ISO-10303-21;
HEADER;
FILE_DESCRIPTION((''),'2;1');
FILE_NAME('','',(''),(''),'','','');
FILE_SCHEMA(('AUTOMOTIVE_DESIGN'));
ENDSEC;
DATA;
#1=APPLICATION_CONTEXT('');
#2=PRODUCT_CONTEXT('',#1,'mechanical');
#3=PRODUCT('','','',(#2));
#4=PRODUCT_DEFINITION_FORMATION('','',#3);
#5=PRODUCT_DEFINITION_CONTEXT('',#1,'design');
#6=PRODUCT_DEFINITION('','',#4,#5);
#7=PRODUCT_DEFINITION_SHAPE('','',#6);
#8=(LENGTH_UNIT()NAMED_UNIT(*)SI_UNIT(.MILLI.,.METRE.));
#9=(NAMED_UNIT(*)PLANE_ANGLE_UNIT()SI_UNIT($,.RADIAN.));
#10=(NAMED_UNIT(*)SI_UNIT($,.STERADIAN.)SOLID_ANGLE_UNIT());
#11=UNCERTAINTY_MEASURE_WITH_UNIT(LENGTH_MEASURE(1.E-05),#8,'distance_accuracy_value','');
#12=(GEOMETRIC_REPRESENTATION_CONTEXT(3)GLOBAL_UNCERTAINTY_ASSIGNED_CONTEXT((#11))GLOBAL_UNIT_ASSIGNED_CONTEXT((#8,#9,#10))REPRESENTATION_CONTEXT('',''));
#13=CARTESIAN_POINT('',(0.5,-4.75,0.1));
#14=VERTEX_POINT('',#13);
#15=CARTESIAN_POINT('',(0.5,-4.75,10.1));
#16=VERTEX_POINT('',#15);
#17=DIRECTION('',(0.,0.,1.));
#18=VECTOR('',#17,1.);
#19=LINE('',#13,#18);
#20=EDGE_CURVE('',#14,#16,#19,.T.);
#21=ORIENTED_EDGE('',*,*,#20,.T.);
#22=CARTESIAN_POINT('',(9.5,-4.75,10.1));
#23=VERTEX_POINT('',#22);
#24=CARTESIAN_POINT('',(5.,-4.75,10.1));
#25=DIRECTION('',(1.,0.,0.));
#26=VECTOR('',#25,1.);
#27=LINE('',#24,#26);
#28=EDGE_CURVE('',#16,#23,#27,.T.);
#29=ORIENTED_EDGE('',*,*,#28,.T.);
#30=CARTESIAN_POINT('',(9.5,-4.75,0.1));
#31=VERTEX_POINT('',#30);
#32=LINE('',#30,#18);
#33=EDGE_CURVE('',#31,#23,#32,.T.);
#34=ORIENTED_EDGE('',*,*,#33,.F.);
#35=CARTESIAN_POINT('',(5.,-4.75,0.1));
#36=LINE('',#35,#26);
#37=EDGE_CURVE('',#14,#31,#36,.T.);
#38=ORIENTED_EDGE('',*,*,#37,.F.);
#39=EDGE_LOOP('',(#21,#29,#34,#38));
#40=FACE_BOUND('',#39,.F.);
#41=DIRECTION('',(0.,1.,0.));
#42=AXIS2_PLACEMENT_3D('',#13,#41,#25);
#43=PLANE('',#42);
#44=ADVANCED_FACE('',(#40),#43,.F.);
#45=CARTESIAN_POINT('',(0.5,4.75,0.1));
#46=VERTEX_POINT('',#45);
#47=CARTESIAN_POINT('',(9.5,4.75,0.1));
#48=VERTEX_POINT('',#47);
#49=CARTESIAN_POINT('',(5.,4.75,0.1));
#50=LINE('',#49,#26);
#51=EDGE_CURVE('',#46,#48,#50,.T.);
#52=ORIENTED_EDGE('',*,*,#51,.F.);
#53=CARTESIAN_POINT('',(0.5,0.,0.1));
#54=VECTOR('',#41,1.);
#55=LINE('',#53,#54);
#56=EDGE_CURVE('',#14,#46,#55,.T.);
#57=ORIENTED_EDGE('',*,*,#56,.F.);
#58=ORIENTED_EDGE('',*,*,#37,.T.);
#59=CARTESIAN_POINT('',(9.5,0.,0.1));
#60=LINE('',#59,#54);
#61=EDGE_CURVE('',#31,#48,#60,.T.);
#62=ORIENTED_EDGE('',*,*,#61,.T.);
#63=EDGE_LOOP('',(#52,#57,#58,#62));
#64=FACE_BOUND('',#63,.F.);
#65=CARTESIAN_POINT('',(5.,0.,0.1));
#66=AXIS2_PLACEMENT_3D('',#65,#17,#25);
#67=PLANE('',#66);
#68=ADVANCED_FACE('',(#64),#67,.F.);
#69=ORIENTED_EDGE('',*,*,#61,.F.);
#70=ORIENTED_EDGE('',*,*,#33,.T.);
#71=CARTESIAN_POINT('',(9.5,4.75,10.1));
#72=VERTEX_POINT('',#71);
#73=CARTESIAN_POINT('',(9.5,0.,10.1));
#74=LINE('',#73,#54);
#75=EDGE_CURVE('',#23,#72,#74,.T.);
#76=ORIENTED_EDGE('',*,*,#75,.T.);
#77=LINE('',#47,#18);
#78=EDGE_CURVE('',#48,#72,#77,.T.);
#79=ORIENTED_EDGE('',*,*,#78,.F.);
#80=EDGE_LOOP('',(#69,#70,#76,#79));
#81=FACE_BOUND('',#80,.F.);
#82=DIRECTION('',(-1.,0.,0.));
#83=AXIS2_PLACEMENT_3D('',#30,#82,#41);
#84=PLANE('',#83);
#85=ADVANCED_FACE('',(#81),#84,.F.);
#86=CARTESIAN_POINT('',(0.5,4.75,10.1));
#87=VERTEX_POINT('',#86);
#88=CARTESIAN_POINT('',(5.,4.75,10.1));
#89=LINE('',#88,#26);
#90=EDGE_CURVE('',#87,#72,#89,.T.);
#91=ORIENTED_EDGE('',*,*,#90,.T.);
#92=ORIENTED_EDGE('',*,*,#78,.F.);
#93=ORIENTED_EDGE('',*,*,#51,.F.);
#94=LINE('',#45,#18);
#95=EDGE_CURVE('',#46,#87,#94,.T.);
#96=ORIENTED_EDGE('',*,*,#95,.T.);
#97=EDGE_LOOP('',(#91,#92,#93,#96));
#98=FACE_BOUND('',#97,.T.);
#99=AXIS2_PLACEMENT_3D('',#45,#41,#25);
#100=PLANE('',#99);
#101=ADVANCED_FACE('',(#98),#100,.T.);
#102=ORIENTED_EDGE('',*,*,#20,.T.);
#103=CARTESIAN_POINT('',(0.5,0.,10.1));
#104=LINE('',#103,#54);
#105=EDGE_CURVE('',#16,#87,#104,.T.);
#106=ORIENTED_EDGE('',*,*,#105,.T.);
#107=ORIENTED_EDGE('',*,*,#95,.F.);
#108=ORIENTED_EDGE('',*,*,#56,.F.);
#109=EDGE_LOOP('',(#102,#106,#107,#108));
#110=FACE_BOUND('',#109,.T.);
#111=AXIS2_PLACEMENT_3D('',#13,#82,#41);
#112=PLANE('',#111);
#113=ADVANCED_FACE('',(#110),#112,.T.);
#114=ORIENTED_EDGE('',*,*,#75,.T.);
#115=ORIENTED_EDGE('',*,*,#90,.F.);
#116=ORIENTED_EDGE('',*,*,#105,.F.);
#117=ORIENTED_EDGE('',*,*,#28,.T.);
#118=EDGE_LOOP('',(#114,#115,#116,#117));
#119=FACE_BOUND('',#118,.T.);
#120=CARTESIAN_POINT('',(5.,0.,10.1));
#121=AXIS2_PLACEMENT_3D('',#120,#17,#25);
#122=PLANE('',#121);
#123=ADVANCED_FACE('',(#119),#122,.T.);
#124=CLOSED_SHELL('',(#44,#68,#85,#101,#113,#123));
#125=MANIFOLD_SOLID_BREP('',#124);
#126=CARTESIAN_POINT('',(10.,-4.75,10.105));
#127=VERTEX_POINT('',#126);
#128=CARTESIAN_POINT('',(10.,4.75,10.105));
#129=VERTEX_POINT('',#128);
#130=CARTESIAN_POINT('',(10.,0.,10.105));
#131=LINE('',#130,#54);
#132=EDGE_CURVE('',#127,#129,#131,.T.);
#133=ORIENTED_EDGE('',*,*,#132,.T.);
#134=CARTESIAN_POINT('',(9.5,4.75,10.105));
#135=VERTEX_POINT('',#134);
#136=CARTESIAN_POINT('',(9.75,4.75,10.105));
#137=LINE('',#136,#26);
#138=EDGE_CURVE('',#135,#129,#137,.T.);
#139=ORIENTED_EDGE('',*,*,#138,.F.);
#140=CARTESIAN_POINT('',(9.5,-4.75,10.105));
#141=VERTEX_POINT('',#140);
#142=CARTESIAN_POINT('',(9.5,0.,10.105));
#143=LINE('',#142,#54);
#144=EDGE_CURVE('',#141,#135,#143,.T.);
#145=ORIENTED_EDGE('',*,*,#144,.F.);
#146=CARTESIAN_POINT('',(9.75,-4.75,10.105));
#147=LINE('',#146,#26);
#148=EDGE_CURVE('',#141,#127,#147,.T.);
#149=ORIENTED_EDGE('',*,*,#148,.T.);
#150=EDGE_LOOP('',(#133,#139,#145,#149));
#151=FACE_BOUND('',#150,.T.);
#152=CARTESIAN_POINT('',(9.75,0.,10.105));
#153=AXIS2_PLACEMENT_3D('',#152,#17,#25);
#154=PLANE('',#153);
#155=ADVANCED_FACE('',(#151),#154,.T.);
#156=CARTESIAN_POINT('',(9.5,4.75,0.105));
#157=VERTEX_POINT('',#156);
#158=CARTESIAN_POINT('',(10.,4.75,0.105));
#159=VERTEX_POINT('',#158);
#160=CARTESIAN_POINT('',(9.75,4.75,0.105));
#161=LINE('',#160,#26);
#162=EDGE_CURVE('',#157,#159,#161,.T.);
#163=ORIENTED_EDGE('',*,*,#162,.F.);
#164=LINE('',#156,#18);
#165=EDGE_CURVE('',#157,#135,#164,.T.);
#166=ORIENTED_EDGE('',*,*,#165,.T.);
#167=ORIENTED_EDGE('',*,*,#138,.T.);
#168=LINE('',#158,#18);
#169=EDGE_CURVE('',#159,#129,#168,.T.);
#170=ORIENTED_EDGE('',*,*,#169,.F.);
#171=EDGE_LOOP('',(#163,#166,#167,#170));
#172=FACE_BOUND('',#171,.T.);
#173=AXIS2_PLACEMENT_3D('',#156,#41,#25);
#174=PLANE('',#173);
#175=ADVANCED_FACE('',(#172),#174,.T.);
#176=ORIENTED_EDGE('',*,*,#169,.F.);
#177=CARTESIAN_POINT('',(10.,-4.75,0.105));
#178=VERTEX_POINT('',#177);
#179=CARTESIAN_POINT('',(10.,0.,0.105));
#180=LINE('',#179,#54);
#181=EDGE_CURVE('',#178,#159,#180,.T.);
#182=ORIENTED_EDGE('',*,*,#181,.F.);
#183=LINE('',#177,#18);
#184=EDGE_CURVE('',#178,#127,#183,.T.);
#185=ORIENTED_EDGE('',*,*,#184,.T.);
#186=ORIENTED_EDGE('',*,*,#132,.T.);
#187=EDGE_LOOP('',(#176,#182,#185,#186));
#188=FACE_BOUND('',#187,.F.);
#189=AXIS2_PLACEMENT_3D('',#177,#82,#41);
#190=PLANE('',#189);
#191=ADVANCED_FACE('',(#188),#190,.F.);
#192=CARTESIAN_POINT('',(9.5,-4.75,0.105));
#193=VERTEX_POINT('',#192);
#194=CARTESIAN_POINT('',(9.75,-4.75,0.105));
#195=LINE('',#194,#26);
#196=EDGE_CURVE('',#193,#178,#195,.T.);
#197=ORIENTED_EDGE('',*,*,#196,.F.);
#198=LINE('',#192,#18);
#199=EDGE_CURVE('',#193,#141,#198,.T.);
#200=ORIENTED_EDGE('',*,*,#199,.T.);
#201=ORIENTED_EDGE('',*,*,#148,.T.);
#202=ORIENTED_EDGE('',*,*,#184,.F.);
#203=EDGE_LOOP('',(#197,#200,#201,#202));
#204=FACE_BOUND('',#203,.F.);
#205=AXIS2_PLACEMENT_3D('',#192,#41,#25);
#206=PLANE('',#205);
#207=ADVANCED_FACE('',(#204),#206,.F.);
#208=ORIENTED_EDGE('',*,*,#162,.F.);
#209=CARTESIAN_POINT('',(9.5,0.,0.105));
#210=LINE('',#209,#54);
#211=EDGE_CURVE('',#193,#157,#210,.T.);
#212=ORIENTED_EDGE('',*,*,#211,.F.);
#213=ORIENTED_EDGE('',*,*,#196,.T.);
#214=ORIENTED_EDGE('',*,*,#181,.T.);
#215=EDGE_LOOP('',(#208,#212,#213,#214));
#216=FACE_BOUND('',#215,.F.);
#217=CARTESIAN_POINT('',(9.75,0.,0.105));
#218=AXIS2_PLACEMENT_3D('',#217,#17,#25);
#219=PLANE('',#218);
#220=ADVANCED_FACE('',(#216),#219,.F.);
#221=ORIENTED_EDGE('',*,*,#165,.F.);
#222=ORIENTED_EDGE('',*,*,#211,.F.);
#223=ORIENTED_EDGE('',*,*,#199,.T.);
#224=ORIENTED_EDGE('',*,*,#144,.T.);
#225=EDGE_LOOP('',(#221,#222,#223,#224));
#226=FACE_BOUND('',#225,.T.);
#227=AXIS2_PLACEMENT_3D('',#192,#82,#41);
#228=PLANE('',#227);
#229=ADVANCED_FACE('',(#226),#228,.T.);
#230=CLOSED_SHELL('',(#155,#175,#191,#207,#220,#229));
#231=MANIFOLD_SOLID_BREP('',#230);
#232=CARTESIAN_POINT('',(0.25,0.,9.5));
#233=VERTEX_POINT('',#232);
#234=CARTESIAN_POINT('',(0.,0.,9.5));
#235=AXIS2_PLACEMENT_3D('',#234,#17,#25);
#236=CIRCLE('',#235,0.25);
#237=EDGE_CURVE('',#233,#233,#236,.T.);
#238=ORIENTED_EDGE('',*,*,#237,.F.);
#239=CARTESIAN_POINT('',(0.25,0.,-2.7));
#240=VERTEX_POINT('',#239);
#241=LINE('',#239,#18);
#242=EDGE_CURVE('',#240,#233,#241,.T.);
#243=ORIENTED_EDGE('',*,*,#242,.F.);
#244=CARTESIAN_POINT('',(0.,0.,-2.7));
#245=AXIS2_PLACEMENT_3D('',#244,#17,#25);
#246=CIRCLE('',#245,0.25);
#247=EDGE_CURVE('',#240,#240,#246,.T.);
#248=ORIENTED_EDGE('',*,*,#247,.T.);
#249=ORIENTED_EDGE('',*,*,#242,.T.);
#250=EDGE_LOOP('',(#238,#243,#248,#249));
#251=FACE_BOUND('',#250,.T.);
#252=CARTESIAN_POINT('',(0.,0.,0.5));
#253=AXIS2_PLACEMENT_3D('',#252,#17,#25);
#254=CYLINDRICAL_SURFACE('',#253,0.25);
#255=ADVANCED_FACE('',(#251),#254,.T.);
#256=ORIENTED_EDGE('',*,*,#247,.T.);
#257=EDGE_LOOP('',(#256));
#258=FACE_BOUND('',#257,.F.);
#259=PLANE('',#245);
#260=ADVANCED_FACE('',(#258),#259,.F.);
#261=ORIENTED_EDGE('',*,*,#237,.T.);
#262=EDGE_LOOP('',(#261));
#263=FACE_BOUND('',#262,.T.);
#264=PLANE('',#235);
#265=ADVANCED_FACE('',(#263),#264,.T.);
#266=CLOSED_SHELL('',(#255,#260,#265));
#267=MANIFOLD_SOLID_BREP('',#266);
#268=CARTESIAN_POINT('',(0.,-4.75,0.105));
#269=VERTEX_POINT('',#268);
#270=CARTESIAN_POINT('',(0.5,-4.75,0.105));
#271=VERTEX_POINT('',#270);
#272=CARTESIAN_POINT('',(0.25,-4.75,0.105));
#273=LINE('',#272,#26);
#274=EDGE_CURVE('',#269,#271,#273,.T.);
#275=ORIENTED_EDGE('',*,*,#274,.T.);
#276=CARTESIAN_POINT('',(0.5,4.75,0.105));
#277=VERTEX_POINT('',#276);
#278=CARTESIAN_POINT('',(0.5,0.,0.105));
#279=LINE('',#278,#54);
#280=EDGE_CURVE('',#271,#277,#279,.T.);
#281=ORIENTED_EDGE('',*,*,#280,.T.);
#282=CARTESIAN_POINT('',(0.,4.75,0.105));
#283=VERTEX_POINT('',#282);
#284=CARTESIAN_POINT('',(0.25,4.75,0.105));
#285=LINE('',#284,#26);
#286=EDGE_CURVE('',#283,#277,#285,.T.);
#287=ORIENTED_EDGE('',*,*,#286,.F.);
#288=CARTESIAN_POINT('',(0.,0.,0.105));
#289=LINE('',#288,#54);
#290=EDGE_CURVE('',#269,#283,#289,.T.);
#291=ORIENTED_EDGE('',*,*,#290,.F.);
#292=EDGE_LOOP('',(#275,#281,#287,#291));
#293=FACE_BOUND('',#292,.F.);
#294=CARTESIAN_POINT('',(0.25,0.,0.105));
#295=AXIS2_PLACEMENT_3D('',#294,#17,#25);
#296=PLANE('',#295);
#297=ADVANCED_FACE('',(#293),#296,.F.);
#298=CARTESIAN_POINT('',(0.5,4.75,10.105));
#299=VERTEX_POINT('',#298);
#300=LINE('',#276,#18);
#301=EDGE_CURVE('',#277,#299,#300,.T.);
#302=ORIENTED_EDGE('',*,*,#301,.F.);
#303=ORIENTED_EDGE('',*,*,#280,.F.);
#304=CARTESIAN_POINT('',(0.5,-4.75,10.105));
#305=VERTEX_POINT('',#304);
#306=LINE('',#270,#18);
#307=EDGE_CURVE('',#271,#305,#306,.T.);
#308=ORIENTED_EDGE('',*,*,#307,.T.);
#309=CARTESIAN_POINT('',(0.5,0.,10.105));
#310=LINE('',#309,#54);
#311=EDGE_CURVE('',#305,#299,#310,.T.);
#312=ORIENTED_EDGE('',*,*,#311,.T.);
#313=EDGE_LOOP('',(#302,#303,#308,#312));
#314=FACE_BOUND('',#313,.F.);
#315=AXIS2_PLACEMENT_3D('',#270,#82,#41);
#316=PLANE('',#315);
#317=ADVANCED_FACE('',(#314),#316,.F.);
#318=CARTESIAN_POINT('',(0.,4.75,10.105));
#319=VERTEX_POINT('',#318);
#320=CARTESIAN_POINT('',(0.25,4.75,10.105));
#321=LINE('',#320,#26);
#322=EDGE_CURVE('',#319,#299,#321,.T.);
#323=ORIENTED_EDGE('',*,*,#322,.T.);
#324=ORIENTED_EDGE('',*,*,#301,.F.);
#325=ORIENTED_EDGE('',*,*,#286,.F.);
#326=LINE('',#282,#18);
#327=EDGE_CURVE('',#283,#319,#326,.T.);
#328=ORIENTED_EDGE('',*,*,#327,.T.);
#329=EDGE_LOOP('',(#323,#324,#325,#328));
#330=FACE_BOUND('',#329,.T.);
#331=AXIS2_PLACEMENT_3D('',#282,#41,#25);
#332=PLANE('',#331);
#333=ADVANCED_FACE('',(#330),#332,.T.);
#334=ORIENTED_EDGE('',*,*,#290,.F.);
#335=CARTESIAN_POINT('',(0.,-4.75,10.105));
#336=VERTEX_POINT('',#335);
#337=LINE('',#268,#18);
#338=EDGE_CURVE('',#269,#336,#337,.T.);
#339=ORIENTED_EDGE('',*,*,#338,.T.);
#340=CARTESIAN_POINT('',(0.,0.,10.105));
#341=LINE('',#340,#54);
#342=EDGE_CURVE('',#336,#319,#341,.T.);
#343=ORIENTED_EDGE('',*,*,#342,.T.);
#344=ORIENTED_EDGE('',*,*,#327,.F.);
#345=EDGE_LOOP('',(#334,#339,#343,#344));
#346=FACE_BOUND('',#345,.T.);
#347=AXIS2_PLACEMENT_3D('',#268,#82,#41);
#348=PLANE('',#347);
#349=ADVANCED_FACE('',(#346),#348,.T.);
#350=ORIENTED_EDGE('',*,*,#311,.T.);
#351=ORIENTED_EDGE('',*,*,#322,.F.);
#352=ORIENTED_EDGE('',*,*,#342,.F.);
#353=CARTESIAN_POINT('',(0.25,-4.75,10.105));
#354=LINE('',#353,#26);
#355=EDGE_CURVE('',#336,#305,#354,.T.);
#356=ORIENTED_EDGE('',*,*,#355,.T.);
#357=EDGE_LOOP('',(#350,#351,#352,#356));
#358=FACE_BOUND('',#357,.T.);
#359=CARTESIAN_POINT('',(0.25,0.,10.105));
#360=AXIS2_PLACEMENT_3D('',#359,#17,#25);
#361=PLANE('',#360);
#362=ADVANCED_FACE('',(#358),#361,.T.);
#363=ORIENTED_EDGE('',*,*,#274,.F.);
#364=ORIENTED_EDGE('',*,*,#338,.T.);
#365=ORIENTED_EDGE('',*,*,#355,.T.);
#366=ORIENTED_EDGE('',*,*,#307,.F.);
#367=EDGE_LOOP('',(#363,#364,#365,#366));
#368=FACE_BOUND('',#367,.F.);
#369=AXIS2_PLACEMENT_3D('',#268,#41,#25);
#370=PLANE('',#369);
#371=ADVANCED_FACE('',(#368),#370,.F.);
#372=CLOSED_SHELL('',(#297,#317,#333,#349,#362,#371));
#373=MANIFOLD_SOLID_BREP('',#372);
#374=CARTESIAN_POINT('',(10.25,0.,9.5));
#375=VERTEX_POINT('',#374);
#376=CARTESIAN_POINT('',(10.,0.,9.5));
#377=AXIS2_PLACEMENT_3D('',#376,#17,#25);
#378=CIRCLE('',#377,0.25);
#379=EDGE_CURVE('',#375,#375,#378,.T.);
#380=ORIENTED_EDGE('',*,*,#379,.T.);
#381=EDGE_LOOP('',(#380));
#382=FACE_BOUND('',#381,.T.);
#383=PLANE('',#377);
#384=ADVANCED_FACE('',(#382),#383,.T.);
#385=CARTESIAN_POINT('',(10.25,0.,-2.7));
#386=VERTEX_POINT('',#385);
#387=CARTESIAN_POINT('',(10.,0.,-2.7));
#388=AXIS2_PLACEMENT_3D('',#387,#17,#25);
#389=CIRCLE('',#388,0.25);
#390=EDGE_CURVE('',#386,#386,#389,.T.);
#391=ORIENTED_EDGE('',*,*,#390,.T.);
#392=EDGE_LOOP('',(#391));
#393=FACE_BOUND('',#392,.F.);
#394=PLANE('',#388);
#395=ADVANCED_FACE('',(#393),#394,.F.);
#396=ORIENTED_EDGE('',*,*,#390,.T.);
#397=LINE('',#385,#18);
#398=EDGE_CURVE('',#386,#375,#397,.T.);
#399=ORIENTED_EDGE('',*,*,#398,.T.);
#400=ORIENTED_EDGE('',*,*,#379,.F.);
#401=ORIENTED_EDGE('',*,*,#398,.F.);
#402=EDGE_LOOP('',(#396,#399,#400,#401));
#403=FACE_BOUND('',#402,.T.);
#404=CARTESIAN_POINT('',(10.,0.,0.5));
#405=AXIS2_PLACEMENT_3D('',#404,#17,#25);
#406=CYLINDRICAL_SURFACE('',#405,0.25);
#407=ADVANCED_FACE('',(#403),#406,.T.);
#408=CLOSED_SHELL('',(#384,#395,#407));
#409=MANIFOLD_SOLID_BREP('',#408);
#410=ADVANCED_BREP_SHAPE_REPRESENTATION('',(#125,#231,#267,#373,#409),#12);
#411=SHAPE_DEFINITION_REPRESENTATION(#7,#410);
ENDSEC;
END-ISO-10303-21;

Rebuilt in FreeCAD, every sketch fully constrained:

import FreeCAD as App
import Part
import Sketcher
from FreeCAD import Vector


def add_polygon(sketch, points):
    """Adds a closed chain of lines whose ends are joined by coincident constraints."""
    first, n = sketch.GeometryCount, len(points)
    for a, b in zip(points, points[1:] + points[:1]):
        sketch.addGeometry(Part.LineSegment(App.Vector(*a, 0), App.Vector(*b, 0)), False)
    for i in range(n):
        sketch.addConstraint(Sketcher.Constraint("Coincident", first + i, 2, first + (i + 1) % n, 1))

doc = App.newDocument("Part")
body = doc.addObject("PartDesign::Body", "Body")

# Sketch on XY plane
sketch1 = body.newObject("Sketcher::SketchObject", "Sketch")
sketch1.AttachmentSupport = (doc.getObject("XY_Plane"), [""])
sketch1.MapMode = "FlatFace"
sketch1.AttachmentOffset = App.Placement(Vector(0, 0, 0.1), App.Rotation())
add_polygon(sketch1, [(0, 5), (0, -5), (10, -5), (10, 5)])  # lines 0-3
sketch1.addConstraint([
    Sketcher.Constraint("Vertical", 0),
    Sketcher.Constraint("Horizontal", 1),
    Sketcher.Constraint("Vertical", 2),
    Sketcher.Constraint("Horizontal", 3),
    Sketcher.Constraint("DistanceX", 1, 1, 1, 2, 9.0),
    Sketcher.Constraint("DistanceY", 0, 2, 0, 1, 9.5),
    Sketcher.Constraint("DistanceX", -1, 1, 0, 2, 0.5),
    Sketcher.Constraint("DistanceY", 0, 2, -1, 1, 4.75),
])
pad1 = body.newObject("PartDesign::Pad", "Pad")
pad1.Profile = sketch1
pad1.Length = 10
body2 = doc.addObject("PartDesign::Body", "Body001")
body2.AllowCompound = True

# Sketch on XY plane
sketch2 = body2.newObject("Sketcher::SketchObject", "Sketch001")
sketch2.AttachmentSupport = (doc.getObject("XY_Plane001"), [""])
sketch2.MapMode = "FlatFace"
sketch2.AttachmentOffset = App.Placement(Vector(0, 0, 0.5), App.Rotation())
sketch2.addGeometry([
    Part.Circle(Vector(0, 0, 0), Vector(0, 0, 1), 0.25),
    Part.Circle(Vector(10, 0, 0), Vector(0, 0, 1), 0.25),
], False)
sketch2.addConstraint([
    Sketcher.Constraint("Coincident", 0, 3, -1, 1),
    Sketcher.Constraint("Equal", 0, 1),
    Sketcher.Constraint("PointOnObject", 1, 3, -1),
    Sketcher.Constraint("Diameter", 0, 0.5),
    Sketcher.Constraint("DistanceX", -1, 1, 1, 3, 10.0),
])
pad2 = body2.newObject("PartDesign::Pad", "Pad001")
pad2.Profile = sketch2
pad2.Type = "TwoLengths"
pad2.Length = 9
pad2.Length2 = 3.2
body3 = doc.addObject("PartDesign::Body", "Body002")
body3.AllowCompound = True

# Sketch on XY plane
sketch3 = body3.newObject("Sketcher::SketchObject", "Sketch002")
sketch3.AttachmentSupport = (doc.getObject("XY_Plane002"), [""])
sketch3.MapMode = "FlatFace"
sketch3.AttachmentOffset = App.Placement(Vector(0, 0, 0.105), App.Rotation())
add_polygon(sketch3, [(0, 4.8), (0, -4.8), (0.5, -4.8), (0.5, 4.8)])  # lines 0-3
add_polygon(sketch3, [(9.5, 4.8), (9.5, -4.8), (10, -4.8), (10, 4.8)])  # lines 4-7
sketch3.addConstraint([
    Sketcher.Constraint("Vertical", 0),
    Sketcher.Constraint("Horizontal", 1),
    Sketcher.Constraint("Vertical", 2),
    Sketcher.Constraint("Horizontal", 3),
    Sketcher.Constraint("Vertical", 4),
    Sketcher.Constraint("Horizontal", 5),
    Sketcher.Constraint("Vertical", 6),
    Sketcher.Constraint("Horizontal", 7),
    Sketcher.Constraint("Symmetric", 0, 2, 3, 2, -1, 1),
    Sketcher.Constraint("Horizontal", 1, 2, 4, 2),
    Sketcher.Constraint("Horizontal", 3, 2, 6, 2),
    Sketcher.Constraint("Equal", 3, 5),
    Sketcher.Constraint("DistanceX", 1, 1, 1, 2, 0.5),
    Sketcher.Constraint("DistanceY", 0, 2, 0, 1, 9.5),
    Sketcher.Constraint("DistanceX", -1, 1, 5, 2, 10.0),
])
pad3 = body3.newObject("PartDesign::Pad", "Pad002")
pad3.Profile = sketch3
pad3.Length = 10

doc.recompute()
